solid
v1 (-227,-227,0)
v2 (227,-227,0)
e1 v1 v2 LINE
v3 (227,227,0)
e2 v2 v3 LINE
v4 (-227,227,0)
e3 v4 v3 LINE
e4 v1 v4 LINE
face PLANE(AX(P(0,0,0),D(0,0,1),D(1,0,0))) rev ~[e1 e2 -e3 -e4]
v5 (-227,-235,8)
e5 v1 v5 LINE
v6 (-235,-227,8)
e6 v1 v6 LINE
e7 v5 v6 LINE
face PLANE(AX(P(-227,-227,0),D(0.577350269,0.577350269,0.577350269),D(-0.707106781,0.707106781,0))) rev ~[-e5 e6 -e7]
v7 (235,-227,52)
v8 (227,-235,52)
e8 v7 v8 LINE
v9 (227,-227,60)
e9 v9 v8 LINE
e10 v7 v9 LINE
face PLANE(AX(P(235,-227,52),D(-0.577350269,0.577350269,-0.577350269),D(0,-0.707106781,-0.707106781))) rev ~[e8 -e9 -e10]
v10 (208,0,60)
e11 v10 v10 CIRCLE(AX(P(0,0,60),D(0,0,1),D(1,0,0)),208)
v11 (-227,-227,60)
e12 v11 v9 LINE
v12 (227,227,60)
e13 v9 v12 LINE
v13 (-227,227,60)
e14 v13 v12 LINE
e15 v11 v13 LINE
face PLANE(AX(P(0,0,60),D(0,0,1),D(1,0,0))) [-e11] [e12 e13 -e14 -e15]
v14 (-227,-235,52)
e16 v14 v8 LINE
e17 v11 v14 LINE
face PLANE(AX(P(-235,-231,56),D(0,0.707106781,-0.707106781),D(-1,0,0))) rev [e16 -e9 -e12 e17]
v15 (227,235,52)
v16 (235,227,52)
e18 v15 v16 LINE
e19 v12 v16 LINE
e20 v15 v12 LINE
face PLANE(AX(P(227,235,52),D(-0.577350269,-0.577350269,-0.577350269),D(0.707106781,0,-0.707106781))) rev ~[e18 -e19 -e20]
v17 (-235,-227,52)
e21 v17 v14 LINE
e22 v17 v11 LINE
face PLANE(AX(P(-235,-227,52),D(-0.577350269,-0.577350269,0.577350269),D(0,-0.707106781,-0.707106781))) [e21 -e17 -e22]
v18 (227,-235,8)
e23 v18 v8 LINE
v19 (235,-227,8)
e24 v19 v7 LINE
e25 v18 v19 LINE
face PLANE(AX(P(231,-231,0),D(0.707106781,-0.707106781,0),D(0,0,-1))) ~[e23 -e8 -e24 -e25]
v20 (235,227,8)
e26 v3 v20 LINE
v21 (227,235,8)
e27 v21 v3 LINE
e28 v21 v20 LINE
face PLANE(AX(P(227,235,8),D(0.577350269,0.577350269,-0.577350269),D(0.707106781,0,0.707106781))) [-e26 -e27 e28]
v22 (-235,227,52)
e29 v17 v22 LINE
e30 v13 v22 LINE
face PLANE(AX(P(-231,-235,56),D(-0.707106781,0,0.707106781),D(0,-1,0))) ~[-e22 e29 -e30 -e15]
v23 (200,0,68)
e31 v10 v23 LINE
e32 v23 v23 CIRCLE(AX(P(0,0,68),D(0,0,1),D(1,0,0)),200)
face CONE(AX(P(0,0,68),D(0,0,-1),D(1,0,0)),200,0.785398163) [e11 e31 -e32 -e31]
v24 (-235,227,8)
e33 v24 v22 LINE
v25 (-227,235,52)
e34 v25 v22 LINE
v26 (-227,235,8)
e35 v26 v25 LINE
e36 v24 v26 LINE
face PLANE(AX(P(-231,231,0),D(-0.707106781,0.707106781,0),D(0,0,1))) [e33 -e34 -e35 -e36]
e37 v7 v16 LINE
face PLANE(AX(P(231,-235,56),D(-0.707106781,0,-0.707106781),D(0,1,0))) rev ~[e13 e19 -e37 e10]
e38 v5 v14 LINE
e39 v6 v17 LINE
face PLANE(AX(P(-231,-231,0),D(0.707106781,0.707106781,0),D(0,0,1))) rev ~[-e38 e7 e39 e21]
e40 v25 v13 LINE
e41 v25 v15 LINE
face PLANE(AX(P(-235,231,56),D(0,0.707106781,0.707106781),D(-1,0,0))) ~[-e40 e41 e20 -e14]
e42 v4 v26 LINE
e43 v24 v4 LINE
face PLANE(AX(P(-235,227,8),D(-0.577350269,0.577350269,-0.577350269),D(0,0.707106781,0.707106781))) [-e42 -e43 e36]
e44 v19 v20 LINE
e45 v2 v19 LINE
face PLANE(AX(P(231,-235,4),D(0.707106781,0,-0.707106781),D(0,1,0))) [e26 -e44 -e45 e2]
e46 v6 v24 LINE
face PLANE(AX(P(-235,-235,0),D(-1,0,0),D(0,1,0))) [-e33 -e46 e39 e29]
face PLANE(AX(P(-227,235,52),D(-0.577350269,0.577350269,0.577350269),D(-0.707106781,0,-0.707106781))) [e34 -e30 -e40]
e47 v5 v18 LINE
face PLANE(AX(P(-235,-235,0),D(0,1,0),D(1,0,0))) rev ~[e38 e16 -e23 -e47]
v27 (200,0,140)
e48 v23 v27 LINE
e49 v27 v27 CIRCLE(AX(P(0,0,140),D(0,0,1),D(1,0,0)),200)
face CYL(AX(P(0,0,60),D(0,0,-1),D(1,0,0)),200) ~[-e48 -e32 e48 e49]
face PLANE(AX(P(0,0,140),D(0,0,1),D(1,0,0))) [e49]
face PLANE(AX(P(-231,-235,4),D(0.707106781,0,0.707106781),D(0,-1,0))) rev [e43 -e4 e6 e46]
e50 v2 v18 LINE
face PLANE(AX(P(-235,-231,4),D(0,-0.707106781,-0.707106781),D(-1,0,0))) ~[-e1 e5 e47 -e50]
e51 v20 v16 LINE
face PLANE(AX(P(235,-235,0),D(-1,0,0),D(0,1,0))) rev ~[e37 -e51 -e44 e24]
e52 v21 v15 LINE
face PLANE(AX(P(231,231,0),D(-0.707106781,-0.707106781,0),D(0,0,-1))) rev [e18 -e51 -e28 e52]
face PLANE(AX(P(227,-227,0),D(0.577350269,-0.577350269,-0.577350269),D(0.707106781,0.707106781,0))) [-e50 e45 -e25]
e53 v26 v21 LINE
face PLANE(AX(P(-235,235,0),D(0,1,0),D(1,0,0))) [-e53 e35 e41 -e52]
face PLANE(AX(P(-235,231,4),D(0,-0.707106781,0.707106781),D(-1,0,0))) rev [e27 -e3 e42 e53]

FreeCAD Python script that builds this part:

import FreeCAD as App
import Part
import Sketcher
from FreeCAD import Vector


def edges_at(feature, points):
    """Names of the edges that pass closest to the given points."""
    edges = feature.Shape.Edges
    near = lambda p: min(range(len(edges)), key=lambda i: edges[i].distToShape(Part.Vertex(*p))[0])
    return sorted({f"Edge{near(p) + 1}" for p in points})


def add_polygon(sketch, points):
    """Adds a closed chain of lines whose ends are joined by coincident constraints."""
    first, n = sketch.GeometryCount, len(points)
    for a, b in zip(points, points[1:] + points[:1]):
        sketch.addGeometry(Part.LineSegment(App.Vector(*a, 0), App.Vector(*b, 0)), False)
    for i in range(n):
        sketch.addConstraint(Sketcher.Constraint("Coincident", first + i, 2, first + (i + 1) % n, 1))

doc = App.newDocument("Part")
params = doc.addObject("Spreadsheet::Sheet", "Params")
for row, (alias, value) in enumerate([
    ("sketch1_width", "470 mm"),
    ("pad1_length", "60 mm"),
    ("sketch2_diameter", "400 mm"),
    ("pad2_length", "80 mm"),
    ("chamfer_size", "8 mm"),
], start=1):
    params.set(f"A{row}", alias)
    params.set(f"B{row}", "=" + value)
    params.setAlias(f"B{row}", alias)

body = doc.addObject("PartDesign::Body", "Body")

# Sketch on XY plane
sketch1 = body.newObject("Sketcher::SketchObject", "Sketch")
sketch1.AttachmentSupport = (doc.getObject("XY_Plane"), [""])
sketch1.MapMode = "FlatFace"
add_polygon(sketch1, [(-235, 235), (-235, -235), (235, -235), (235, 235)])  # lines 0-3
sketch1.addConstraint(Sketcher.Constraint("Vertical", 0))
sketch1.addConstraint(Sketcher.Constraint("Horizontal", 1))
sketch1.addConstraint(Sketcher.Constraint("Vertical", 2))
sketch1.addConstraint(Sketcher.Constraint("Horizontal", 3))
sketch1.addConstraint(Sketcher.Constraint("Symmetric", 0, 2, 2, 2, -1, 1))
sketch1.addConstraint(Sketcher.Constraint("Equal", 3, 0))
sketch1.addConstraint(Sketcher.Constraint("DistanceX", 1, 1, 1, 2, 470.0))
sketch1.setExpression("Constraints[10]", "Params.sketch1_width")
pad1 = body.newObject("PartDesign::Pad", "Pad")
pad1.Profile = sketch1
pad1.setExpression("Length", "Params.pad1_length")

# Sketch on XY plane
sketch2 = body.newObject("Sketcher::SketchObject", "Sketch001")
sketch2.AttachmentSupport = (doc.getObject("XY_Plane"), [""])
sketch2.MapMode = "FlatFace"
sketch2.AttachmentOffset = App.Placement(Vector(0, 0, 60), App.Rotation())
sketch2.addGeometry(Part.Circle(Vector(0, 0, 0), Vector(0, 0, 1), 200), False)
sketch2.addConstraint(Sketcher.Constraint("Coincident", 0, 3, -1, 1))
sketch2.addConstraint(Sketcher.Constraint("Diameter", 0, 400.0))
sketch2.setExpression("Constraints[1]", "Params.sketch2_diameter")
pad2 = body.newObject("PartDesign::Pad", "Pad001")
pad2.Profile = sketch2
pad2.setExpression("Length", "Params.pad2_length")
doc.recompute()

chamfer = body.newObject("PartDesign::Chamfer", "Chamfer")
chamfer.Base = (pad2, edges_at(pad2, [
    (0, -235, 60),
    (-235, 0, 60),
    (235, 0, 60),
    (0, 235, 60),
    (-200, 0, 60),
    (-235, -235, 30),
    (235, -235, 30),
    (0, -235, 0),
    (235, 0, 0),
    (0, 235, 0),
    (-235, 0, 0),
    (235, 235, 30),
    (-235, 235, 30),
]))
chamfer.setExpression("Size", "Params.chamfer_size")

doc.recompute()
